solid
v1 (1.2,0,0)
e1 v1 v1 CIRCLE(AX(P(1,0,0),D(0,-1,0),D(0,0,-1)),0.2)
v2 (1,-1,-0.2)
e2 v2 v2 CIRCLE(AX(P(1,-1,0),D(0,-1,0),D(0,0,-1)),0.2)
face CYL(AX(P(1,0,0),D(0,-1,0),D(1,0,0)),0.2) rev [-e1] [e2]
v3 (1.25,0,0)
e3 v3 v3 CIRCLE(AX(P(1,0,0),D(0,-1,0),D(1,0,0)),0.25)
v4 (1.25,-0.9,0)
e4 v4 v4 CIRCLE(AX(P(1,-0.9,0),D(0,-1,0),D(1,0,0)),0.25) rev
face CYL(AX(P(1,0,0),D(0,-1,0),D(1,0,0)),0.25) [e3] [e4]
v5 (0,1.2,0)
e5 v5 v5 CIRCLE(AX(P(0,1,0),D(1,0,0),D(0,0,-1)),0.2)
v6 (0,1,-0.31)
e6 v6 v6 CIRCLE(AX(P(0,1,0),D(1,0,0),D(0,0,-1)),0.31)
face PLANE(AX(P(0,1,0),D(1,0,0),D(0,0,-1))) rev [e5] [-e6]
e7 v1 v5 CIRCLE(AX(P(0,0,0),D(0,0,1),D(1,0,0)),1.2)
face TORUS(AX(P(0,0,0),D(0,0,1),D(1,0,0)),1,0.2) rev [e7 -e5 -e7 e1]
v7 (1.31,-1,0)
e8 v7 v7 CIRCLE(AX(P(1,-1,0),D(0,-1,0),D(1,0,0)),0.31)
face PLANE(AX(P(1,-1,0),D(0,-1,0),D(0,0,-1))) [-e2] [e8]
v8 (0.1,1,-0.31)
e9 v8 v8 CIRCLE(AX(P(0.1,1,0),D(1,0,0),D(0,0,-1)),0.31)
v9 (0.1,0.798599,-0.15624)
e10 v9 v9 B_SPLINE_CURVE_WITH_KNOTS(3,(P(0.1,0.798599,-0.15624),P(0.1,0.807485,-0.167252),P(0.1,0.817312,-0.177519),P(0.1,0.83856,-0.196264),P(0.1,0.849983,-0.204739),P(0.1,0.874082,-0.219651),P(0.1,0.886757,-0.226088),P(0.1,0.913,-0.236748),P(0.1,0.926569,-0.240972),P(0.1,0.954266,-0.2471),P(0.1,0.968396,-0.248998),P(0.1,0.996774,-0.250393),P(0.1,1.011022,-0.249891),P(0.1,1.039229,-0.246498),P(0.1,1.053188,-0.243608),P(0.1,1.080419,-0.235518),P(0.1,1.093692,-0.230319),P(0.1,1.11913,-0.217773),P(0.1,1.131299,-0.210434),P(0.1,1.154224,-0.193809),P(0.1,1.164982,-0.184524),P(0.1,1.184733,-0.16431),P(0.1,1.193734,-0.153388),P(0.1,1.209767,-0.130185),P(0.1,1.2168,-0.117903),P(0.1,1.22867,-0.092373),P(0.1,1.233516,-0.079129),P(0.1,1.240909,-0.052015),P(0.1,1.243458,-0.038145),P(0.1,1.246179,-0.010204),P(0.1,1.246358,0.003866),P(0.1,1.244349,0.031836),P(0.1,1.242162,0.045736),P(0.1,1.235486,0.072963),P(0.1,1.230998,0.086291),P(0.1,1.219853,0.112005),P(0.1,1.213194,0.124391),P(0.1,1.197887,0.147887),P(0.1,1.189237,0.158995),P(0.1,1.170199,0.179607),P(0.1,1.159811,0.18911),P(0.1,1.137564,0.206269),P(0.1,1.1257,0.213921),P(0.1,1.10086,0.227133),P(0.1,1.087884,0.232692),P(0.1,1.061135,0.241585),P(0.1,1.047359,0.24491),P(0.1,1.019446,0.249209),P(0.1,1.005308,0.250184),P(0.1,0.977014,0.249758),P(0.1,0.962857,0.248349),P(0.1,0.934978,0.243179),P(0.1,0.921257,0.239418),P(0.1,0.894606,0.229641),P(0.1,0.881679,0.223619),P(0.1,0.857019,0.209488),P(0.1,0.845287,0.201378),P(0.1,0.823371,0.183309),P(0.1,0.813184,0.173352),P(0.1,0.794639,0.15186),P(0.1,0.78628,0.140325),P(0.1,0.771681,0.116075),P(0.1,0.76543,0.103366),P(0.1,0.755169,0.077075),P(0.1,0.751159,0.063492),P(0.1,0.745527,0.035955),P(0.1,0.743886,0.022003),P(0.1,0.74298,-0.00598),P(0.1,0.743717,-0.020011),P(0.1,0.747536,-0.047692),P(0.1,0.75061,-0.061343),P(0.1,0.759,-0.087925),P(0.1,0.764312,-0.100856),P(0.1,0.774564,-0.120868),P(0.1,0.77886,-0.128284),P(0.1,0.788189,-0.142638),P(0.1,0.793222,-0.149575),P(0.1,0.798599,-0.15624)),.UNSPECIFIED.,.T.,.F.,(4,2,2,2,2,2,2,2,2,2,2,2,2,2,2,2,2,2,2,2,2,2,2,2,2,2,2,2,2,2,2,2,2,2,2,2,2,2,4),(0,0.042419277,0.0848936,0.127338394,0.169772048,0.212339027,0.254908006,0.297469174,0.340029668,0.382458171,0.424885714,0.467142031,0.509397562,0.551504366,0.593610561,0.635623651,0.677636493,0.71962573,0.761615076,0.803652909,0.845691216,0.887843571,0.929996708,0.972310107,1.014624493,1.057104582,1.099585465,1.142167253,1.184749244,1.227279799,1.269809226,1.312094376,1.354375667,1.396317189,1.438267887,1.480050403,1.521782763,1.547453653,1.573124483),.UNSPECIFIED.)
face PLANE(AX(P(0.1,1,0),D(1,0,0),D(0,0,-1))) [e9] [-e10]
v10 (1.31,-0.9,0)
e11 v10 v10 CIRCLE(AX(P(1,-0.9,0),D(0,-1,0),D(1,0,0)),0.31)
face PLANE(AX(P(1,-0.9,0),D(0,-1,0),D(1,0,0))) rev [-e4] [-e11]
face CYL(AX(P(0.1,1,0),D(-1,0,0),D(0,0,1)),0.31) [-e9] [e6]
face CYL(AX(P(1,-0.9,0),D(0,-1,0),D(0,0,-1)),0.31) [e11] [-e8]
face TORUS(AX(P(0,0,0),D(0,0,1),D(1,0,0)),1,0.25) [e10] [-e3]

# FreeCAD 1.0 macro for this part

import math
import FreeCAD as App
import Part
import Sketcher
from FreeCAD import Vector
Q = App.Units.Quantity

doc = App.newDocument("Part")
body = doc.addObject("PartDesign::Body", "Body")

sketch1 = body.newObject("Sketcher::SketchObject", "Sketch")
sketch1.AttachmentSupport = (doc.getObject("YZ_Plane"), [""])
sketch1.MapMode = "FlatFace"
sketch1.addGeometry([
    Part.Circle(Vector(1, 0, 0), Vector(0, 0, 1), 0.25),
    Part.Circle(Vector(1, 0, 0), Vector(0, 0, 1), 0.2),
], False)
sketch1.addConstraint([
    Sketcher.Constraint("Coincident", 1, 3, 0, 3),
    Sketcher.Constraint("PointOnObject", 0, 3, -1),
    Sketcher.Constraint("Diameter", 0, Q("0.5 mm")),
    Sketcher.Constraint("Diameter", 1, Q("0.4 mm")),
    Sketcher.Constraint("DistanceX", -1, 1, 0, 3, Q("1 mm")),
])

sketch2 = body.newObject("Sketcher::SketchObject", "Sketch001")
sketch2.AttachmentSupport = (doc.getObject("XY_Plane"), [""])
sketch2.MapMode = "FlatFace"
sketch2.addGeometry([
    Part.LineSegment(Vector(1, -1, 0), Vector(1, 0, 0)),
    Part.ArcOfCircle(Part.Circle(Vector(0, 0, 0), Vector(0, 0, 1), 1), math.radians(0), math.radians(90)),
], False)
sketch2.addConstraint([
    Sketcher.Constraint("Tangent", 0, 2, 1, 1),
    Sketcher.Constraint("Vertical", 0),
    Sketcher.Constraint("Coincident", 1, 3, -1, 1),
    Sketcher.Constraint("PointOnObject", 1, 2, -2),
    Sketcher.Constraint("Radius", 1, Q("1 mm")),
    Sketcher.Constraint("DistanceY", 0, 1, 0, 2, Q("1 mm")),
])
doc.recompute()

additivepipe = body.newObject("PartDesign::AdditivePipe", "AdditivePipe")
additivepipe.Profile = sketch1
additivepipe.Spine = (sketch2, ["Edge1", "Edge2"])

sketch3 = body.newObject("Sketcher::SketchObject", "Sketch002")
sketch3.AttachmentSupport = (doc.getObject("YZ_Plane"), [""])
sketch3.MapMode = "FlatFace"
sketch3.addGeometry([
    Part.Circle(Vector(1, 0, 0), Vector(0, 0, 1), 0.31),
    Part.Circle(Vector(1, 0, 0), Vector(0, 0, 1), 0.21),
], False)
sketch3.addConstraint([
    Sketcher.Constraint("Coincident", 1, 3, 0, 3),
    Sketcher.Constraint("PointOnObject", 0, 3, -1),
    Sketcher.Constraint("Diameter", 0, Q("0.62 mm")),
    Sketcher.Constraint("Diameter", 1, Q("0.42 mm")),
    Sketcher.Constraint("DistanceX", -1, 1, 0, 3, Q("1 mm")),
])

sketch4 = body.newObject("Sketcher::SketchObject", "Sketch003")
sketch4.AttachmentSupport = (doc.getObject("XY_Plane"), [""])
sketch4.MapMode = "FlatFace"
sketch4.addGeometry(Part.LineSegment(Vector(0, 1, 0), Vector(0.1, 1, 0)), False)
sketch4.addConstraint([
    Sketcher.Constraint("Horizontal", 0),
    Sketcher.Constraint("PointOnObject", 0, 1, -2),
    Sketcher.Constraint("DistanceX", 0, 1, 0, 2, Q("0.1 mm")),
    Sketcher.Constraint("DistanceY", -1, 1, 0, 1, Q("1 mm")),
])
doc.recompute()

additivepipe2 = body.newObject("PartDesign::AdditivePipe", "AdditivePipe001")
additivepipe2.Profile = sketch3
additivepipe2.Spine = (sketch4, ["Edge1"])

sketch5 = body.newObject("Sketcher::SketchObject", "Sketch004")
sketch5.AttachmentSupport = (doc.getObject("XZ_Plane"), [""])
sketch5.MapMode = "FlatFace"
sketch5.AttachmentOffset = App.Placement(Vector(0, 0, 1), App.Rotation())
sketch5.addGeometry([
    Part.Circle(Vector(1, 0, 0), Vector(0, 0, 1), 0.31),
    Part.Circle(Vector(1, 0, 0), Vector(0, 0, 1), 0.21),
], False)
sketch5.addConstraint([
    Sketcher.Constraint("Coincident", 1, 3, 0, 3),
    Sketcher.Constraint("PointOnObject", 0, 3, -1),
    Sketcher.Constraint("Diameter", 0, Q("0.62 mm")),
    Sketcher.Constraint("Diameter", 1, Q("0.42 mm")),
    Sketcher.Constraint("DistanceX", -1, 1, 0, 3, Q("1 mm")),
])

sketch6 = body.newObject("Sketcher::SketchObject", "Sketch005")
sketch6.AttachmentSupport = (doc.getObject("XY_Plane"), [""])
sketch6.MapMode = "FlatFace"
sketch6.addGeometry(Part.LineSegment(Vector(1, -1, 0), Vector(1, -0.9, 0)), False)
sketch6.addConstraint([
    Sketcher.Constraint("Vertical", 0),
    Sketcher.Constraint("DistanceY", 0, 1, 0, 2, Q("0.1 mm")),
    Sketcher.Constraint("DistanceX", -1, 1, 0, 1, Q("1 mm")),
    Sketcher.Constraint("DistanceY", 0, 1, -1, 1, Q("1 mm")),
])
doc.recompute()

additivepipe3 = body.newObject("PartDesign::AdditivePipe", "AdditivePipe002")
additivepipe3.Profile = sketch5
additivepipe3.Spine = (sketch6, ["Edge1"])

doc.recompute()
